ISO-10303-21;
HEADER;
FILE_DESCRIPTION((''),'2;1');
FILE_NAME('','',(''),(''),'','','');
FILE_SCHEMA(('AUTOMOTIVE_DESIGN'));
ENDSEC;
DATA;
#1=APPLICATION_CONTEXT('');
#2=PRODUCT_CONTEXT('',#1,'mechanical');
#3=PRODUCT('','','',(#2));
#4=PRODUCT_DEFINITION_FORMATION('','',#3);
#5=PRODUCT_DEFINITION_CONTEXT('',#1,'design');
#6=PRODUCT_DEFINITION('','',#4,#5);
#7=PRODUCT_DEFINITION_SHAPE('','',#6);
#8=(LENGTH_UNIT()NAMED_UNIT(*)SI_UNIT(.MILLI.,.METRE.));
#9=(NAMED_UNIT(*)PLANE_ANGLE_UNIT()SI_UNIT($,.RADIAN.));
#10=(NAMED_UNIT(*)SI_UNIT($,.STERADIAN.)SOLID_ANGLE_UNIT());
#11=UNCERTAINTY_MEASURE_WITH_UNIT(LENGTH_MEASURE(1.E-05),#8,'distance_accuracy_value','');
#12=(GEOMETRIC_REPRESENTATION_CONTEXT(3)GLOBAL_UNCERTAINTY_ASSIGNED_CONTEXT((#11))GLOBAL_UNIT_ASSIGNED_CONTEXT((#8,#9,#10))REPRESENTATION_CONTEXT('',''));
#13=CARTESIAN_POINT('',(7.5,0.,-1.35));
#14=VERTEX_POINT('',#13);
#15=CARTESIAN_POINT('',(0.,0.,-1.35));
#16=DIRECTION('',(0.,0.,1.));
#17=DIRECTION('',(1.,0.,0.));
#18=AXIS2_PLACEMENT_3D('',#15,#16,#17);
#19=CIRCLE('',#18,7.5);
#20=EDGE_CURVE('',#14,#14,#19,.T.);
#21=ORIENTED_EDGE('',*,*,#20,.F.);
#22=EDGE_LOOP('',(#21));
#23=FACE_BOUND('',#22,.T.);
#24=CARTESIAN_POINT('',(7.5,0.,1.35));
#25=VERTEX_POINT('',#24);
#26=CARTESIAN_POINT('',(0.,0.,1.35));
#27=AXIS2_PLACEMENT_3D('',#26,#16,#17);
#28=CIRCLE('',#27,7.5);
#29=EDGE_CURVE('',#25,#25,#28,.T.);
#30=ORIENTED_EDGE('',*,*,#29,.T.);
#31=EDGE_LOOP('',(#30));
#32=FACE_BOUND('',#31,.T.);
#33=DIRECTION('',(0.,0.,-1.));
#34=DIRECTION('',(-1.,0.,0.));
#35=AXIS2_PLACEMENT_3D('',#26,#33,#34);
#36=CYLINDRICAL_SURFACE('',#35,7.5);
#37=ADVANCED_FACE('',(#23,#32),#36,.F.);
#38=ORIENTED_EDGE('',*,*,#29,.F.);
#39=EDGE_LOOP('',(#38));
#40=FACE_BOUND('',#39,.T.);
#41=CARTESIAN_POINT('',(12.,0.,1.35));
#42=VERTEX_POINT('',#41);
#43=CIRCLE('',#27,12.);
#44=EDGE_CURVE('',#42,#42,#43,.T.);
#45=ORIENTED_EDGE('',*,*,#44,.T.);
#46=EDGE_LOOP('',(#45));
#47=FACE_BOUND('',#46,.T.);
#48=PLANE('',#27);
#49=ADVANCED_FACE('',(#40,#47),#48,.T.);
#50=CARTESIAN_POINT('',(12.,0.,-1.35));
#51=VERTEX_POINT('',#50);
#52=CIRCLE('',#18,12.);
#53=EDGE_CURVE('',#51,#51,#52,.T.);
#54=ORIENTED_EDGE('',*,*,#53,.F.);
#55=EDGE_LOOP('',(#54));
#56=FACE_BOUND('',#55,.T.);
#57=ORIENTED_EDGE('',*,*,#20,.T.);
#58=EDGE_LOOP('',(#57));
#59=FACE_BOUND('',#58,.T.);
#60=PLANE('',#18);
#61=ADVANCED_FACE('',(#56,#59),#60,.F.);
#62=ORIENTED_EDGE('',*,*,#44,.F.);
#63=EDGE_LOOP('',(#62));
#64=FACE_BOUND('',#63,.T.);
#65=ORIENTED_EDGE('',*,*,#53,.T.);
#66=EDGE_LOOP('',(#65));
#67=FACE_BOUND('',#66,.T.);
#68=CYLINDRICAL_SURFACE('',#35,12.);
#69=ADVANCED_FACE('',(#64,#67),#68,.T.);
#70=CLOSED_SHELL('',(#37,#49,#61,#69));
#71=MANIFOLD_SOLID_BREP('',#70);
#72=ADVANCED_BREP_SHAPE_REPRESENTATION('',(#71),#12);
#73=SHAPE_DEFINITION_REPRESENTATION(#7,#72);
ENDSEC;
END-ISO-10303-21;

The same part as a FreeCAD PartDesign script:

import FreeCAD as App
import Part
import Sketcher

V = App.Vector
Q = App.Units.Quantity

doc = App.newDocument("Part")
body = doc.addObject("PartDesign::Body", "Body")

# Sketch on XY plane
sketch1 = body.newObject("Sketcher::SketchObject", "Sketch")
sketch1.AttachmentSupport = (doc.getObject("XY_Plane"), [""])
sketch1.MapMode = "FlatFace"
sketch1.addGeometry(Part.Circle(V(0, 0, 0), V(0, 0, 1), 12), False)
sketch1.addGeometry(Part.Circle(V(0, 0, 0), V(0, 0, 1), 8), False)
sketch1.addConstraint(Sketcher.Constraint("Coincident", 0, 3, -1, 1))
sketch1.addConstraint(Sketcher.Constraint("Coincident", 1, 3, -1, 1))
sketch1.addConstraint(Sketcher.Constraint("Diameter", 0, Q("24 mm")))
sketch1.addConstraint(Sketcher.Constraint("Diameter", 1, Q("15 mm")))
pad1 = body.newObject("PartDesign::Pad", "Pad")
pad1.Profile = sketch1
pad1.Type = "TwoLengths"
pad1.Length = 1.35
pad1.Length2 = 1.35

doc.recompute()
